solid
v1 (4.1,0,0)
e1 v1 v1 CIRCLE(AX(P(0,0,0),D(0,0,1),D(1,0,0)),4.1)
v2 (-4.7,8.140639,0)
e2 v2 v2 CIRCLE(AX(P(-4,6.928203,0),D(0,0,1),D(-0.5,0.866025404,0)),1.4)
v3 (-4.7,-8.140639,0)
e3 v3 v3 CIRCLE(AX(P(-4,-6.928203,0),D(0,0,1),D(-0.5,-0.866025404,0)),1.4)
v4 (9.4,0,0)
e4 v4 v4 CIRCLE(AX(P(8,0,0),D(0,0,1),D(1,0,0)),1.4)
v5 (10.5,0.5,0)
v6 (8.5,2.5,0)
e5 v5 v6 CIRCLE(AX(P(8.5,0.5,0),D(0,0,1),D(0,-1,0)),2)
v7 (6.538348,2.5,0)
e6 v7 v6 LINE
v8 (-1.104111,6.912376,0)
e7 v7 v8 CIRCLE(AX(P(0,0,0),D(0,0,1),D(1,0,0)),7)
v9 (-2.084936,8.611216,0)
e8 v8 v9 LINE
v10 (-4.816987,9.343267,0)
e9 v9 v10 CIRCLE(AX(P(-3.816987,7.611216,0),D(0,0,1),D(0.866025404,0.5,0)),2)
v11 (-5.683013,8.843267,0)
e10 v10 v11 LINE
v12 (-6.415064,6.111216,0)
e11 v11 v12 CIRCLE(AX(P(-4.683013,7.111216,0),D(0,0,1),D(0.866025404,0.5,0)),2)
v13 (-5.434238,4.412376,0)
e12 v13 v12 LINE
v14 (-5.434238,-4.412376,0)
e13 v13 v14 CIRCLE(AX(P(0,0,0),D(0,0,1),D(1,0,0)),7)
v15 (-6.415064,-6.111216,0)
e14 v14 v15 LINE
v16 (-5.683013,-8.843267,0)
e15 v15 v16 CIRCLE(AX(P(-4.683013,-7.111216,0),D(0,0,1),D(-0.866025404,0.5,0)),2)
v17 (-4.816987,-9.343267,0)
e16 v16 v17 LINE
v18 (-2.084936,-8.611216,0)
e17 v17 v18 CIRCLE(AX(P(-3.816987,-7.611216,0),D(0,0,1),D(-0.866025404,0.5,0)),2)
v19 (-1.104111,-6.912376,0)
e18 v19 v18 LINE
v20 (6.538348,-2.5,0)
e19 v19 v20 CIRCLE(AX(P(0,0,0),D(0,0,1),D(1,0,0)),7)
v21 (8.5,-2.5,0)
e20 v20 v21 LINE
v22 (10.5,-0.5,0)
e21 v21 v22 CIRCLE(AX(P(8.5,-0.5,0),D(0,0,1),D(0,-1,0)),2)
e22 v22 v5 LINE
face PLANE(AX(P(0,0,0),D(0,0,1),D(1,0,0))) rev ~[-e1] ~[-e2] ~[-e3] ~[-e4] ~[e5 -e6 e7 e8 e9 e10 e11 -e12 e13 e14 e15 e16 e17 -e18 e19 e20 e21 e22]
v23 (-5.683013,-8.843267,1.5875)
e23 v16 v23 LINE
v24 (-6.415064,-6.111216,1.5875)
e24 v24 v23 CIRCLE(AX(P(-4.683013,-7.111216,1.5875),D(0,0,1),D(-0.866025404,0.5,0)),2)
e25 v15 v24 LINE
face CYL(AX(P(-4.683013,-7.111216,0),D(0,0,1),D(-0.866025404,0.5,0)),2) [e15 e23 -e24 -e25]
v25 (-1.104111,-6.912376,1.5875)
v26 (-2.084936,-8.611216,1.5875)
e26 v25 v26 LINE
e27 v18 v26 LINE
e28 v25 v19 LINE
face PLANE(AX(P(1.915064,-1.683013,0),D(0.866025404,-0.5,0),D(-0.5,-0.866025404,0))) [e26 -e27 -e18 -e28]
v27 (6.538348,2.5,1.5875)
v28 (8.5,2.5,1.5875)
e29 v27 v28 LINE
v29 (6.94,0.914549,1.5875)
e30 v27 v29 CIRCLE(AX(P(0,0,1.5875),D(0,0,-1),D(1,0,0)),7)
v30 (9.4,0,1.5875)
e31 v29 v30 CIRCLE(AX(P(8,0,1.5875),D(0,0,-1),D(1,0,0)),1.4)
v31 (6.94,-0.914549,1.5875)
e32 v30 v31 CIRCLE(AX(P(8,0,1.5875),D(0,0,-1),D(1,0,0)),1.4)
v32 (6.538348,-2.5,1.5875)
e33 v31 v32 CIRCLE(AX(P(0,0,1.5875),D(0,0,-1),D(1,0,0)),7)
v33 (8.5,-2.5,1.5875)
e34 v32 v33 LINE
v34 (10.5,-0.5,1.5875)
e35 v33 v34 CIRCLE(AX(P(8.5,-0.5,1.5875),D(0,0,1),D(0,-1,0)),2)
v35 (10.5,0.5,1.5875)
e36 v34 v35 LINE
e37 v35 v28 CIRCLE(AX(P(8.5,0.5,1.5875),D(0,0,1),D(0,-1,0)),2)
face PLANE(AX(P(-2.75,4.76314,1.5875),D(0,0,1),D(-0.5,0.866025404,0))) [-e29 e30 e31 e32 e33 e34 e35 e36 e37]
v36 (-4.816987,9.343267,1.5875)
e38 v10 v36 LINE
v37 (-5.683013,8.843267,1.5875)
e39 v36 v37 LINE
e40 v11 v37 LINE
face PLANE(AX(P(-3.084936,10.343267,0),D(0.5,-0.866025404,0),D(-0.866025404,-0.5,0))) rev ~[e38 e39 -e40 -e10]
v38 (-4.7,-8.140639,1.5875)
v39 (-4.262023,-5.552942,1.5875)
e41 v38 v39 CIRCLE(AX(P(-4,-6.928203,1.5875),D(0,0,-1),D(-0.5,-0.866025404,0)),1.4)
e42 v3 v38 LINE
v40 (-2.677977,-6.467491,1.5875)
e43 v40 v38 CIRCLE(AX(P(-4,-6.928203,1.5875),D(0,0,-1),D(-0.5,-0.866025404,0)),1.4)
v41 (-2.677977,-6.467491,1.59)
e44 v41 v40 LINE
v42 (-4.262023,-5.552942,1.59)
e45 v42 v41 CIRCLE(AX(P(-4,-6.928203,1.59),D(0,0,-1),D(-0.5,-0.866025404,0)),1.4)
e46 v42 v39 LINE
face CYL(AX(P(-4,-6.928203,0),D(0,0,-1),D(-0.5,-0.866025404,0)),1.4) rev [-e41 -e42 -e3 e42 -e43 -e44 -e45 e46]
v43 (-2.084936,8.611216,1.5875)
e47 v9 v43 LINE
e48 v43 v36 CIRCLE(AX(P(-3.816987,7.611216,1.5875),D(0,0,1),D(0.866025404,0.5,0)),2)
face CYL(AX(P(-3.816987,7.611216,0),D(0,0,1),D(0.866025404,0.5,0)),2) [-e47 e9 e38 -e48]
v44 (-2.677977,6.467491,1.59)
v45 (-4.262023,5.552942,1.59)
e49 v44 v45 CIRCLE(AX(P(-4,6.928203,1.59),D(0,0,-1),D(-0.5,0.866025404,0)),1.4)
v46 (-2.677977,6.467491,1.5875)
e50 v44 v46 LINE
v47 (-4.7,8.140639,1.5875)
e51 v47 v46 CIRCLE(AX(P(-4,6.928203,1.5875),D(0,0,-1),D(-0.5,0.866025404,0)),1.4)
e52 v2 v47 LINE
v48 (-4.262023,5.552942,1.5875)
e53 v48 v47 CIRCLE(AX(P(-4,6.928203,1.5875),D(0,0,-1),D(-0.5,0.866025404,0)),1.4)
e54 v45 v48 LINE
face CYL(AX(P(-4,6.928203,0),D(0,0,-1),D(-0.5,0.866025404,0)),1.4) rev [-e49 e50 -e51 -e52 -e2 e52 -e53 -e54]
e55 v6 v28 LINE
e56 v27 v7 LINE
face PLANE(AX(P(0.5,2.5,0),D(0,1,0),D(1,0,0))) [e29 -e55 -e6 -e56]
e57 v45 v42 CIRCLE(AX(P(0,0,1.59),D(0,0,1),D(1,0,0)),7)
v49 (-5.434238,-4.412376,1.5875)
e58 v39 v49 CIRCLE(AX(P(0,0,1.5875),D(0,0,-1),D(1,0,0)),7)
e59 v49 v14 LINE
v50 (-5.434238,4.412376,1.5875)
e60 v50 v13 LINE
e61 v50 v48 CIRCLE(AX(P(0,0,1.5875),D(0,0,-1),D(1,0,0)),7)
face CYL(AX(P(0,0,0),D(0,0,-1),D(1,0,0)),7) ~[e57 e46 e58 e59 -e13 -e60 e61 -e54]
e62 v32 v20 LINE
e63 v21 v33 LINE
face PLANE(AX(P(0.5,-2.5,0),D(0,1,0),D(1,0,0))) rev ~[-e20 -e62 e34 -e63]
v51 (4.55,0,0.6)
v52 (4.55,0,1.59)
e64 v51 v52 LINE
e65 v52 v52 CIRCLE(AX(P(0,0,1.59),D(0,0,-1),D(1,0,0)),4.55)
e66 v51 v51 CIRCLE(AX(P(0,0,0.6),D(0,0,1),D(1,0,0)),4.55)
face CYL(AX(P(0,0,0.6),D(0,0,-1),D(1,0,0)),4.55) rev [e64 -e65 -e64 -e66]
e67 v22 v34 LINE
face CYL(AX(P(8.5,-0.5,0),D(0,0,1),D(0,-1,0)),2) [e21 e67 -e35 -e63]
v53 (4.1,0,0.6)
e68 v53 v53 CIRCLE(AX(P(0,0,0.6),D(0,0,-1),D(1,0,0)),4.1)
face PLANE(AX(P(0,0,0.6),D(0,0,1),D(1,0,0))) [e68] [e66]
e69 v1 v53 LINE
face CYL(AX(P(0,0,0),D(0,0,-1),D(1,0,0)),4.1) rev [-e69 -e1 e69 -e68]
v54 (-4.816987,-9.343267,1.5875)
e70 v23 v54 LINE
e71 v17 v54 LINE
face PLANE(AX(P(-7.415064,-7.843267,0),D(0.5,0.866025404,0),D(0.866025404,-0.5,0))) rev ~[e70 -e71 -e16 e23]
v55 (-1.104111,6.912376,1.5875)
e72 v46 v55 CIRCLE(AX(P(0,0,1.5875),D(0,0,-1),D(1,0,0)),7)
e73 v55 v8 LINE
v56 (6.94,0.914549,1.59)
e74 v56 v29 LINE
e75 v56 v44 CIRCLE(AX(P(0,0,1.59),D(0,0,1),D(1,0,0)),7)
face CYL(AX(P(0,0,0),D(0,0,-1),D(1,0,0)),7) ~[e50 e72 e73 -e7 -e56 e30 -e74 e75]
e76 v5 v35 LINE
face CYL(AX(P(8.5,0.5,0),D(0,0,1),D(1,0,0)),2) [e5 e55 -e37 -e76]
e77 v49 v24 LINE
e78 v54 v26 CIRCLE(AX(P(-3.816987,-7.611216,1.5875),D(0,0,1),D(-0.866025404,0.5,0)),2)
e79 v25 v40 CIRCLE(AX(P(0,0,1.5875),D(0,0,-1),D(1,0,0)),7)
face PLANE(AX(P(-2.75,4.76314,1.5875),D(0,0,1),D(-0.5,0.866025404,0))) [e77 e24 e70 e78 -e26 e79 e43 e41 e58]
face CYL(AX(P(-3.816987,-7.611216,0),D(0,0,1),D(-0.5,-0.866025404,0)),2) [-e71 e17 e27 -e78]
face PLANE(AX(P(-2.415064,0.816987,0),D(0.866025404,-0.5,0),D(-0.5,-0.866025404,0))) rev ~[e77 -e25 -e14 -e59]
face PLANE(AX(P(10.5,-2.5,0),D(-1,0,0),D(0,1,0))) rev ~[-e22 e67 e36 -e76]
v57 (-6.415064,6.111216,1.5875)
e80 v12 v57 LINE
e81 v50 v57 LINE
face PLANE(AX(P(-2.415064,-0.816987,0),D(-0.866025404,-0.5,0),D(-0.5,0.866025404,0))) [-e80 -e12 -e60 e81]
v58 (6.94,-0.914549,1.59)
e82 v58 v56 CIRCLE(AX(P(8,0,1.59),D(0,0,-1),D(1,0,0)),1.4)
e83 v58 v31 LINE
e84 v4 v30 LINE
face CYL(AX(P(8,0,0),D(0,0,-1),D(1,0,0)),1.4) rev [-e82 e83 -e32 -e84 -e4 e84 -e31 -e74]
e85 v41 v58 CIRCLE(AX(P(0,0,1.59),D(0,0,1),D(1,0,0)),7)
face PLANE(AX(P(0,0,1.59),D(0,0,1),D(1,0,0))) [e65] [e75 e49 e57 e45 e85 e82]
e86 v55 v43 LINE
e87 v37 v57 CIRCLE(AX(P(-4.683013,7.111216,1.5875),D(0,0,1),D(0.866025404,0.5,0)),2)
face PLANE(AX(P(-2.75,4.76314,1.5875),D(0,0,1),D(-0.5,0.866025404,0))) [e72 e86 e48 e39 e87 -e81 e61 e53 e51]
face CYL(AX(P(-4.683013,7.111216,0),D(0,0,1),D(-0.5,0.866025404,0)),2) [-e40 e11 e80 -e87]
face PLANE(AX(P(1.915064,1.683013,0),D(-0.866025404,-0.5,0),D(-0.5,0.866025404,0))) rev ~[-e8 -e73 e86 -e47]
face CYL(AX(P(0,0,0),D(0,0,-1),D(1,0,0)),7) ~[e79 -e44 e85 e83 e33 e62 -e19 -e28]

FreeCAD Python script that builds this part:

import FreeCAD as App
import Part
import Sketcher

V = App.Vector
Q = App.Units.Quantity


def edges_at(feature, points):
    """Names of the edges that pass closest to the given points."""
    edges = feature.Shape.Edges
    near = lambda p: min(range(len(edges)), key=lambda i: edges[i].distToShape(Part.Vertex(*p))[0])
    return sorted({f"Edge{near(p) + 1}" for p in points})

doc = App.newDocument("Part")
params = doc.addObject("Spreadsheet::Sheet", "Params")
for row, (alias, value) in enumerate([
    ("sketch1_diameter", "9.1 mm"),
    ("pad1_length", "10 mm"),
    ("sketch2_diameter", "2.8 mm"),
    ("pad2_length", "10 mm"),
    ("sketch3_diameter", "8.2 mm"),
    ("pad3_length", "10 mm"),
    ("sketch4_width", "10 mm"),
    ("sketch4_height", "5 mm"),
    ("pad4_length", "1.5875 mm"),
    ("fillet_radius", "2 mm"),
    ("sketch5_diameter", "14 mm"),
    ("pad5_length", "1.59 mm"),
], start=1):
    params.set(f"A{row}", alias)
    params.set(f"B{row}", "=" + value)
    params.setAlias(f"B{row}", alias)

body = doc.addObject("PartDesign::Body", "Body")

# Sketch on XY plane
sketch1 = body.newObject("Sketcher::SketchObject", "Sketch")
sketch1.AttachmentSupport = (doc.getObject("XY_Plane"), [""])
sketch1.MapMode = "FlatFace"
sketch1.AttachmentOffset = App.Placement(V(0, 0, 0.6), App.Rotation())
sketch1.addGeometry(Part.Circle(V(0, 0, 0), V(0, 0, 1), 4.5), False)
sketch1.addConstraint([
    Sketcher.Constraint("Coincident", 0, 3, -1, 1),
    Sketcher.Constraint("Diameter", 0, Q("9.1 mm")),
])
sketch1.setExpression("Constraints[1]", "Params.sketch1_diameter")
pad1 = body.newObject("PartDesign::Pad", "Pad")
pad1.Profile = sketch1
pad1.setExpression("Length", "Params.pad1_length")
body2 = doc.addObject("PartDesign::Body", "Body001")

# Sketch on XY plane
sketch2 = body2.newObject("Sketcher::SketchObject", "Sketch001")
sketch2.AttachmentSupport = (doc.getObject("XY_Plane001"), [""])
sketch2.MapMode = "FlatFace"
sketch2.addGeometry(Part.Circle(V(8, 0, 0), V(0, 0, 1), 1.4), False)
sketch2.addConstraint([
    Sketcher.Constraint("PointOnObject", 0, 3, -1),
    Sketcher.Constraint("Diameter", 0, Q("2.8 mm")),
    Sketcher.Constraint("DistanceX", -1, 1, 0, 3, Q("8 mm")),
])
sketch2.setExpression("Constraints[1]", "Params.sketch2_diameter")
pad2 = body2.newObject("PartDesign::Pad", "Pad001")
pad2.Profile = sketch2
pad2.setExpression("Length", "Params.pad2_length")
body3 = doc.addObject("PartDesign::Body", "Body002")
body3.AllowCompound = True
doc.recompute()

body3.BaseFeature = body2
doc.recompute()

body4 = doc.addObject("PartDesign::Body", "Body003")
body4.BaseFeature = body2
body4.Placement = App.Placement(V(0, 0, 0), App.Rotation(V(0, 0, 1), 120))
boolean = body3.newObject("PartDesign::Boolean", "Boolean")
boolean.Type = "Fuse"
boolean.addObjects([body4])
doc.recompute()

body2.Placement = App.Placement(V(0, 0, 0), App.Rotation(V(0, 0, 1), 240))
boolean2 = body3.newObject("PartDesign::Boolean", "Boolean001")
boolean2.Type = "Fuse"
boolean2.addObjects([body2])
body5 = doc.addObject("PartDesign::Body", "Body004")
body5.AllowCompound = True

# Sketch on XY plane
sketch3 = body5.newObject("Sketcher::SketchObject", "Sketch002")
sketch3.AttachmentSupport = (doc.getObject("XY_Plane004"), [""])
sketch3.MapMode = "FlatFace"
sketch3.addGeometry(Part.Circle(V(0, 0, 0), V(0, 0, 1), 4.1), False)
sketch3.addConstraint([
    Sketcher.Constraint("Coincident", 0, 3, -1, 1),
    Sketcher.Constraint("Diameter", 0, Q("8.2 mm")),
])
sketch3.setExpression("Constraints[1]", "Params.sketch3_diameter")
pad3 = body5.newObject("PartDesign::Pad", "Pad002")
pad3.Profile = sketch3
pad3.setExpression("Length", "Params.pad3_length")
doc.recompute()

boolean3 = body5.newObject("PartDesign::Boolean", "Boolean002")
boolean3.Type = "Fuse"
boolean3.addObjects([body])
doc.recompute()

boolean4 = body5.newObject("PartDesign::Boolean", "Boolean003")
boolean4.Type = "Fuse"
boolean4.addObjects([body3])
body6 = doc.addObject("PartDesign::Body", "Body005")

# Sketch on XY plane
sketch4 = body6.newObject("Sketcher::SketchObject", "Sketch003")
sketch4.AttachmentSupport = (doc.getObject("XY_Plane005"), [""])
sketch4.MapMode = "FlatFace"
sketch4.addGeometry([
    Part.LineSegment(V(0, 2, 0), V(0, -2, 0)),
    Part.LineSegment(V(0, -2, 0), V(10, -2, 0)),
    Part.LineSegment(V(10, -2, 0), V(10, 2, 0)),
    Part.LineSegment(V(10, 2, 0), V(0, 2, 0)),
], False)
sketch4.addConstraint([
    Sketcher.Constraint("Coincident", 0, 2, 1, 1),
    Sketcher.Constraint("Coincident", 1, 2, 2, 1),
    Sketcher.Constraint("Coincident", 2, 2, 3, 1),
    Sketcher.Constraint("Coincident", 3, 2, 0, 1),
    Sketcher.Constraint("Vertical", 0),
    Sketcher.Constraint("Horizontal", 1),
    Sketcher.Constraint("Vertical", 2),
    Sketcher.Constraint("Horizontal", 3),
    Sketcher.Constraint("DistanceX", 1, 1, 1, 2, Q("10 mm")),
    Sketcher.Constraint("DistanceY", 0, 2, 0, 1, Q("5 mm")),
    Sketcher.Constraint("DistanceX", -1, 1, 0, 2, Q("0.5 mm")),
    Sketcher.Constraint("DistanceY", 0, 2, -1, 1, Q("2.5 mm")),
])
sketch4.setExpression("Constraints[8]", "Params.sketch4_width")
sketch4.setExpression("Constraints[9]", "Params.sketch4_height")
pad4 = body6.newObject("PartDesign::Pad", "Pad003")
pad4.Profile = sketch4
pad4.setExpression("Length", "Params.pad4_length")
doc.recompute()

fillet = body6.newObject("PartDesign::Fillet", "Fillet")
fillet.Base = (pad4, edges_at(pad4, [(10.5, -2.5, 0.794), (10.5, 2.5, 0.794)]))
fillet.setExpression("Radius", "Params.fillet_radius")
body7 = doc.addObject("PartDesign::Body", "Body006")
doc.recompute()

body7.BaseFeature = body6
doc.recompute()

body8 = doc.addObject("PartDesign::Body", "Body007")
body8.BaseFeature = body6
body8.Placement = App.Placement(V(0, 0, 0), App.Rotation(V(0, 0, 1), 120))
boolean5 = body7.newObject("PartDesign::Boolean", "Boolean004")
boolean5.Type = "Fuse"
boolean5.addObjects([body8])
doc.recompute()

body6.Placement = App.Placement(V(0, 0, 0), App.Rotation(V(0, 0, 1), 240))
boolean6 = body7.newObject("PartDesign::Boolean", "Boolean005")
boolean6.Type = "Fuse"
boolean6.addObjects([body6])
body9 = doc.addObject("PartDesign::Body", "Body008")

# Sketch on XY plane
sketch5 = body9.newObject("Sketcher::SketchObject", "Sketch004")
sketch5.AttachmentSupport = (doc.getObject("XY_Plane008"), [""])
sketch5.MapMode = "FlatFace"
sketch5.addGeometry(Part.Circle(V(0, 0, 0), V(0, 0, 1), 7), False)
sketch5.addConstraint([
    Sketcher.Constraint("Coincident", 0, 3, -1, 1),
    Sketcher.Constraint("Diameter", 0, Q("14 mm")),
])
sketch5.setExpression("Constraints[1]", "Params.sketch5_diameter")
pad5 = body9.newObject("PartDesign::Pad", "Pad004")
pad5.Profile = sketch5
pad5.setExpression("Length", "Params.pad5_length")
doc.recompute()

boolean7 = body9.newObject("PartDesign::Boolean", "Boolean006")
boolean7.Type = "Fuse"
boolean7.addObjects([body7])
doc.recompute()

boolean8 = body9.newObject("PartDesign::Boolean", "Boolean007")
boolean8.Type = "Cut"
boolean8.addObjects([body5])

doc.recompute()
